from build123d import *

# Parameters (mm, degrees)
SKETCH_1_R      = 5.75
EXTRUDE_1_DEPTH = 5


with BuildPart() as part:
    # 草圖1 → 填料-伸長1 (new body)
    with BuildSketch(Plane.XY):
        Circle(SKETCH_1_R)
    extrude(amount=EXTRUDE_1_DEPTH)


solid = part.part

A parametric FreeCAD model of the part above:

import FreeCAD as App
import Part
import Sketcher

doc = App.newDocument("Part")
body = doc.addObject("PartDesign::Body", "Body")

# Sketch on XY plane
sketch1 = doc.addObject("Sketcher::SketchObject", "Sketch")
body.addObject(sketch1)
sketch1.AttachmentSupport = (doc.XY_Plane, [""])
sketch1.MapMode = "FlatFace"
sketch1.addGeometry(Part.Circle(App.Vector(0, 0, 0), App.Vector(0, 0, 1), 5.75), False)
sketch1.addConstraint([
    Sketcher.Constraint("Coincident", 0, 3, -1, 1),
    Sketcher.Constraint("Diameter", 0, 11.5),
])
pad1 = doc.addObject("PartDesign::Pad", "Pad")
body.addObject(pad1)
pad1.Profile = sketch1
pad1.Length = 5

doc.recompute()
